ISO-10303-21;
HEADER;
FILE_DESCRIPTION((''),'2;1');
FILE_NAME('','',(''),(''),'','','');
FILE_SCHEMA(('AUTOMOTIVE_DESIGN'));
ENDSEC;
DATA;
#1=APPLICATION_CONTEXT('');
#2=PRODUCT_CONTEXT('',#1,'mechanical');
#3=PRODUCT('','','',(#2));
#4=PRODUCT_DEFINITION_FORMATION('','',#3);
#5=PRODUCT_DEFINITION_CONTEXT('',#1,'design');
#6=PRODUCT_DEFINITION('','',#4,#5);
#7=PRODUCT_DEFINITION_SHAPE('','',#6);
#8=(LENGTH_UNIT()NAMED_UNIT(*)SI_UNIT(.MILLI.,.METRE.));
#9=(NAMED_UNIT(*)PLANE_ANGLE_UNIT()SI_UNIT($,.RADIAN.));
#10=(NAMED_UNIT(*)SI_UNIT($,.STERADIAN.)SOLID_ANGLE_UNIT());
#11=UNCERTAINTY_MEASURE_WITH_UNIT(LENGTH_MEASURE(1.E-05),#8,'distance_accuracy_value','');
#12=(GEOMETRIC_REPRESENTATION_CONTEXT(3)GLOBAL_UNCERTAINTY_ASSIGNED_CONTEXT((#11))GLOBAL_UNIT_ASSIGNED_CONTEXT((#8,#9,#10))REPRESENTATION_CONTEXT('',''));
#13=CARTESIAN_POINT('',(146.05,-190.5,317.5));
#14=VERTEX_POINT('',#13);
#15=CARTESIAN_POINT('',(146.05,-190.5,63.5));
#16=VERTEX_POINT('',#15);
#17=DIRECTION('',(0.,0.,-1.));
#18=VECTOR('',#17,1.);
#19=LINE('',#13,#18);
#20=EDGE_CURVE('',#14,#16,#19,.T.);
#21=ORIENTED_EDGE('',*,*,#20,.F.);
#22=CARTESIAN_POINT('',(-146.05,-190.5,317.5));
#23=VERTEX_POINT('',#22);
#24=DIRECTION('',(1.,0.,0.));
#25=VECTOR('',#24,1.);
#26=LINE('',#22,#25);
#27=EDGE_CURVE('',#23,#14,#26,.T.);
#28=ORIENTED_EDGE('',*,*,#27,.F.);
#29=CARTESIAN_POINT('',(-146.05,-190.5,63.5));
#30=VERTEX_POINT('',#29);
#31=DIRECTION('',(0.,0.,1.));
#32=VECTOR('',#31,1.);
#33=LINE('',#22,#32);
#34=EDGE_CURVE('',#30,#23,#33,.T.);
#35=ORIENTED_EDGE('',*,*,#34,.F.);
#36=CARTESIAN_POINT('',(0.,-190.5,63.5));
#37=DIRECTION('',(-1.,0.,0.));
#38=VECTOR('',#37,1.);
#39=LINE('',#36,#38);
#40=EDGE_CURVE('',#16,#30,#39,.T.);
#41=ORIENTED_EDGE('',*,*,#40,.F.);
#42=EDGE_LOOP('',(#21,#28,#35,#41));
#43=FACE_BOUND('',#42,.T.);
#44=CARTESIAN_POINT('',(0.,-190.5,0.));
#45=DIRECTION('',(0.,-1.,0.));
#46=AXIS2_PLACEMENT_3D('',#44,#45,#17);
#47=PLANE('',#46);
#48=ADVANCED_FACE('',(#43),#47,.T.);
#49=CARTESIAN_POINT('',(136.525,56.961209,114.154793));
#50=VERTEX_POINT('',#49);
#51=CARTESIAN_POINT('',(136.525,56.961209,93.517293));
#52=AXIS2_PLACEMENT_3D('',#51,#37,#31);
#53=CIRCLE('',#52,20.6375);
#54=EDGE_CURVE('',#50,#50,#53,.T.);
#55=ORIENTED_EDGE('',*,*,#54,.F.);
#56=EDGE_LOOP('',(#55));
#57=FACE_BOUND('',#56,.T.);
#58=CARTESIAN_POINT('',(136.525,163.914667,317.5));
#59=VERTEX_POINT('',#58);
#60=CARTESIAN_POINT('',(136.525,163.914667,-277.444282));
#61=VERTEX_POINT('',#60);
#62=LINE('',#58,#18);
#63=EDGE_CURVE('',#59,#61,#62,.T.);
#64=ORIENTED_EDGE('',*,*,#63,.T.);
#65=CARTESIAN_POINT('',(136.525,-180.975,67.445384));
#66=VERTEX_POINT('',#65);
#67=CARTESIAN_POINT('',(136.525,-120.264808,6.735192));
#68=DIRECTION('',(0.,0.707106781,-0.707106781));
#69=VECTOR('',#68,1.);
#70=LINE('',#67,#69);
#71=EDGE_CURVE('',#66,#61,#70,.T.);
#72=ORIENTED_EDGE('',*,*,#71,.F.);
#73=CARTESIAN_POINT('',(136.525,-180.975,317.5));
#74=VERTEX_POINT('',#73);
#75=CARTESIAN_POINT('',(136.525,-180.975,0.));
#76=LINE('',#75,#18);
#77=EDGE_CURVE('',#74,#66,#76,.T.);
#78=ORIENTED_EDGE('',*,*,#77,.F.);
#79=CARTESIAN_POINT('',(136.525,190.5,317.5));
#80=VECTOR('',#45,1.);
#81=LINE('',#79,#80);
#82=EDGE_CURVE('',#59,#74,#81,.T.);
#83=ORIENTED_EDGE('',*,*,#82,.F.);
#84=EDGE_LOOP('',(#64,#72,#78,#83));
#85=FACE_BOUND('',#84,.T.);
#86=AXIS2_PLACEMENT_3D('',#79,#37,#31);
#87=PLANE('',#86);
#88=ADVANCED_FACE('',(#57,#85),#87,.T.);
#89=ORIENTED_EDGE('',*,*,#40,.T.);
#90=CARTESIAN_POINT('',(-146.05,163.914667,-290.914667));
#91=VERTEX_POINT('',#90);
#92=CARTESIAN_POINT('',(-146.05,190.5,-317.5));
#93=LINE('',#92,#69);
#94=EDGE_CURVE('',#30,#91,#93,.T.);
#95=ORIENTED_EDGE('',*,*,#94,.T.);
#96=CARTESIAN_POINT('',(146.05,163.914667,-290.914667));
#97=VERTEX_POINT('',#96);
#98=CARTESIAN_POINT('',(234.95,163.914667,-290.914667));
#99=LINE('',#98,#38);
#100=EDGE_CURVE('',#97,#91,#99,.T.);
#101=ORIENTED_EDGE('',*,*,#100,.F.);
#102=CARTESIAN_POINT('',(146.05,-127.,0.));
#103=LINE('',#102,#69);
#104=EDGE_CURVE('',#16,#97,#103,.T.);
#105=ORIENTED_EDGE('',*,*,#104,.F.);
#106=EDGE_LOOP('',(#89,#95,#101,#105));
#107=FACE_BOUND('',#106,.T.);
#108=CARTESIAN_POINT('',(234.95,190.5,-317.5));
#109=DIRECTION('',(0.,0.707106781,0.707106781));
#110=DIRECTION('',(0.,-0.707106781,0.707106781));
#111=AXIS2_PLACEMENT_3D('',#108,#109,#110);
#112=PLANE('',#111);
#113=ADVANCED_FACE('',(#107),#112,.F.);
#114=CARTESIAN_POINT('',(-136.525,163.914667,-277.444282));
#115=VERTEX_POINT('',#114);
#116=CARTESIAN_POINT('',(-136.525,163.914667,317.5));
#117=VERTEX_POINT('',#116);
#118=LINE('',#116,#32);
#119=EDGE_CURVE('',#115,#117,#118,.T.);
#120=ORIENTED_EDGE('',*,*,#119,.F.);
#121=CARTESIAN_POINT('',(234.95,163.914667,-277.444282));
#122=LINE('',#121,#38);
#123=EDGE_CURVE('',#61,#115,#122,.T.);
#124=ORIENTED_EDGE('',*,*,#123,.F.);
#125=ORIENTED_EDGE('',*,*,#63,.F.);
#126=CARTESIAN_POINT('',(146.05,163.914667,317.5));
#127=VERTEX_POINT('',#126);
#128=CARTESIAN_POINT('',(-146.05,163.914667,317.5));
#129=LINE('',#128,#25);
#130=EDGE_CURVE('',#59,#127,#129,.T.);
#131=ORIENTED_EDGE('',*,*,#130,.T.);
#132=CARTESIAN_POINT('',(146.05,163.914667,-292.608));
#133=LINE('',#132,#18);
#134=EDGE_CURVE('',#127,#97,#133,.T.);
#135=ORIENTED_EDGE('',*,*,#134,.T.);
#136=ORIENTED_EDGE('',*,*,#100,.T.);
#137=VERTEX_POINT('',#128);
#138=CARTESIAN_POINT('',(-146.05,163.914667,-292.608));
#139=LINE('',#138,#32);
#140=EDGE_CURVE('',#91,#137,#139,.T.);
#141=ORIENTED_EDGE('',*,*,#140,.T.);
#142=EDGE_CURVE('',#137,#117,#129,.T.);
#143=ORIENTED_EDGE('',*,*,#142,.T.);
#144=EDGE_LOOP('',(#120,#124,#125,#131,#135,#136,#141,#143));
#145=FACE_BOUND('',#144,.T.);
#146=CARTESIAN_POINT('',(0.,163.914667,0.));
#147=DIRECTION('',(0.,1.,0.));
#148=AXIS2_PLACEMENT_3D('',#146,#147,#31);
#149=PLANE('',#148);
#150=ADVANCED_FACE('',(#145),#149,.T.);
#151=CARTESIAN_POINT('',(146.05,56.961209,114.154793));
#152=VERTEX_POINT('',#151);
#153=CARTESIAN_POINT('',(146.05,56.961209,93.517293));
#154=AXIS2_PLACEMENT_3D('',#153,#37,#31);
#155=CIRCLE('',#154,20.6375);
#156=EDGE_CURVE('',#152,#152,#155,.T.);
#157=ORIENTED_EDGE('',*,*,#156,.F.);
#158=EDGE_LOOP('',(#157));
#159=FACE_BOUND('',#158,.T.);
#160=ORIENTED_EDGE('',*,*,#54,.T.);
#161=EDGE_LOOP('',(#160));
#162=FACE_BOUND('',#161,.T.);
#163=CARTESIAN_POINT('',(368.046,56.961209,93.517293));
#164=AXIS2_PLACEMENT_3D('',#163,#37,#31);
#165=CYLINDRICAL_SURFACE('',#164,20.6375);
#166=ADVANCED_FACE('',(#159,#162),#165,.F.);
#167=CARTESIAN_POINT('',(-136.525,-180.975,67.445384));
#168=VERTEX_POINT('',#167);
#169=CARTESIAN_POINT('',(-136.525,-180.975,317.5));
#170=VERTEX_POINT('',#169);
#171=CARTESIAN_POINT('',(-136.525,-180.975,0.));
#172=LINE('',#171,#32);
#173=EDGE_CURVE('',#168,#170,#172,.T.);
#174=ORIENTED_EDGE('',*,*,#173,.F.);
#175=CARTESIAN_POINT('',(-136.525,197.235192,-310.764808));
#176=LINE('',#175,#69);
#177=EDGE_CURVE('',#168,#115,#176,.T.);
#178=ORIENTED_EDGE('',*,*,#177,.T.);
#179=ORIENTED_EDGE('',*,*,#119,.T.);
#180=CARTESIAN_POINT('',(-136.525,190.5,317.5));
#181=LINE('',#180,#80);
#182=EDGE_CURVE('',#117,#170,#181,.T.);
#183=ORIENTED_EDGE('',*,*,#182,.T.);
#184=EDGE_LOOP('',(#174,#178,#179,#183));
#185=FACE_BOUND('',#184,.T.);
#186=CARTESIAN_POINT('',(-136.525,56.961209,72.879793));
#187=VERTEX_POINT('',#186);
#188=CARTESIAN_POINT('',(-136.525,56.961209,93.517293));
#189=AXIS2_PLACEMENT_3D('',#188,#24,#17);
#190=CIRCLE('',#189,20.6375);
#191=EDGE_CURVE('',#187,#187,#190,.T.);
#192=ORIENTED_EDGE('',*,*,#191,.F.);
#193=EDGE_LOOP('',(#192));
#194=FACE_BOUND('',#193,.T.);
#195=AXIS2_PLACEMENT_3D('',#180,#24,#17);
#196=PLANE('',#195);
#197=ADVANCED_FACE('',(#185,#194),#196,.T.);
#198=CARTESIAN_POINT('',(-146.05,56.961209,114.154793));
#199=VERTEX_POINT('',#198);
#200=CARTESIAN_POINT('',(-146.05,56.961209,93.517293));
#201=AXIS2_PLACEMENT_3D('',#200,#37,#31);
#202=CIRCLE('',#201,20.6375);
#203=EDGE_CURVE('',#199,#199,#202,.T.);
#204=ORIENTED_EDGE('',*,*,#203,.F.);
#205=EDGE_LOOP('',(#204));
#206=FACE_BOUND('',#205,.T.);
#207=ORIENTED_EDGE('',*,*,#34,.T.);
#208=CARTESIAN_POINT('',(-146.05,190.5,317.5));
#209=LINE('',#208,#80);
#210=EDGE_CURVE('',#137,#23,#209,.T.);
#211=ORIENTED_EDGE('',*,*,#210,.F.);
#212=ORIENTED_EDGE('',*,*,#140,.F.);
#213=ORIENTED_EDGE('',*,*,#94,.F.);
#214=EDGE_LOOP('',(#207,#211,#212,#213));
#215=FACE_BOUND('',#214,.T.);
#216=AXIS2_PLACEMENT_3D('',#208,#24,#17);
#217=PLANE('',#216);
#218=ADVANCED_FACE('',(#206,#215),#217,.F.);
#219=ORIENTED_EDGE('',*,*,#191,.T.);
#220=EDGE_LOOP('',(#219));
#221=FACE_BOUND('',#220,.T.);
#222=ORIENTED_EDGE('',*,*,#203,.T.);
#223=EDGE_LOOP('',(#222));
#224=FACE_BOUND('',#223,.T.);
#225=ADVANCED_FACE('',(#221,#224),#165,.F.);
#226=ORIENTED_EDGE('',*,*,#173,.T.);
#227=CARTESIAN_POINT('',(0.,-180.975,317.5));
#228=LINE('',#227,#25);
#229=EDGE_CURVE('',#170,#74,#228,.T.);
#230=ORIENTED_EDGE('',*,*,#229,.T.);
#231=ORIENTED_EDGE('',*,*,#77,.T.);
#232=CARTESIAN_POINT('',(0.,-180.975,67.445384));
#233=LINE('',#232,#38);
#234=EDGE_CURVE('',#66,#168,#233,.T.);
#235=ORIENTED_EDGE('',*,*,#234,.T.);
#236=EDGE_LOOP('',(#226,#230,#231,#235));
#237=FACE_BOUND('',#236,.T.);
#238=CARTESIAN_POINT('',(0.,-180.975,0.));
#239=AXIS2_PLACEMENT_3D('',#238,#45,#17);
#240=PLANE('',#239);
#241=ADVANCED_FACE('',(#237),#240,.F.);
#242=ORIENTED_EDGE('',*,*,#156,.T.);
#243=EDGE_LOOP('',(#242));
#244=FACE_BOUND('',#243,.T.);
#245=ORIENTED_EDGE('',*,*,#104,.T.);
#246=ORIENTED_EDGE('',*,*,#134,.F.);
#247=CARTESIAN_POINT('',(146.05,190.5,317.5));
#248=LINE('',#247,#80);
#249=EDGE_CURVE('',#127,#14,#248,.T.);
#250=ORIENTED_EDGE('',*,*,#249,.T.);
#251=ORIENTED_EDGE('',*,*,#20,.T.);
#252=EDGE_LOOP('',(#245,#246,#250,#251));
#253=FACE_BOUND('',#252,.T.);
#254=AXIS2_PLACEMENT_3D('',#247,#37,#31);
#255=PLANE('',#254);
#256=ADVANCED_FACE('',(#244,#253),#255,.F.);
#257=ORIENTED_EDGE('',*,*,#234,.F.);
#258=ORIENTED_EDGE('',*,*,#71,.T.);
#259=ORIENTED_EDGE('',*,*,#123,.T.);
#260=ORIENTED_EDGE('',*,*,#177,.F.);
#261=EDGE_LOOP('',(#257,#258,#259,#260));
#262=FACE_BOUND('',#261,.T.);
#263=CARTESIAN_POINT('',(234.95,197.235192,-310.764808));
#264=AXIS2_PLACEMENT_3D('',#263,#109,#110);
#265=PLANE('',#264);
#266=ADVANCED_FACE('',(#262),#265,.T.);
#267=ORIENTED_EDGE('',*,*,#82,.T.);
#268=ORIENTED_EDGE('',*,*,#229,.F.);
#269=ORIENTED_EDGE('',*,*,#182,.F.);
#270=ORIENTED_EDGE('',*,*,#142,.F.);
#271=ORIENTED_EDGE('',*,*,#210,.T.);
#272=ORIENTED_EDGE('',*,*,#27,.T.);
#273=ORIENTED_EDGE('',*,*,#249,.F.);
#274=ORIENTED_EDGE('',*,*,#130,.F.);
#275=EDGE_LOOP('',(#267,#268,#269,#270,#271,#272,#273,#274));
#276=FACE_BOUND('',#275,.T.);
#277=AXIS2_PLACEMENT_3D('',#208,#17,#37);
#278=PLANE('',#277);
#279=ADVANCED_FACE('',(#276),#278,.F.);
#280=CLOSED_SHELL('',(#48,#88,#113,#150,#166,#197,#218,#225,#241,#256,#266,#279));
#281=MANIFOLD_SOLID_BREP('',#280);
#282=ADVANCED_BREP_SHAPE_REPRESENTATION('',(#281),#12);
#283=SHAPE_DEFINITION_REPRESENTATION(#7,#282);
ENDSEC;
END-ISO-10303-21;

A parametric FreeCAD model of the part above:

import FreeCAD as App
import Part
import Sketcher
from FreeCAD import Vector
Q = App.Units.Quantity


def faces_at(feature, points):
    """Names of the faces that lie closest to the given points."""
    faces = feature.Shape.Faces
    near = lambda p: min(range(len(faces)), key=lambda i: faces[i].distToShape(Part.Vertex(*p))[0])
    return sorted({f"Face{near(p) + 1}" for p in points})

doc = App.newDocument("Part")
params = doc.addObject("Spreadsheet::Sheet", "Params")
for row, (alias, value) in enumerate([
    ("sketch1_height", "25 in"),
    ("sketch1_width", "11.5 in"),
    ("pad1_length", "15 in"),
    ("sketch2_width", "15 in"),
    ("pocket1_length", "15 in"),
    ("thickness_wall", "0.375 in"),
    ("sketch3_height", "25 in"),
    ("sketch3_width", "11.5 in"),
    ("pocket2_length", "0.98 in"),
    ("sketch4_diameter", "1.625 in"),
    ("pocket3_length", "20.24 in"),
    ("sketch5_width", "11.5 in"),
    ("sketch5_height", "24.02 in"),
    ("pocket4_length", "1.693333 mm"),
], start=1):
    params.set(f"A{row}", alias)
    params.set(f"B{row}", "=" + value)
    params.setAlias(f"B{row}", alias)

body = doc.addObject("PartDesign::Body", "Body")

sketch1 = doc.addObject("Sketcher::SketchObject", "Sketch")
body.addObject(sketch1)
sketch1.AttachmentSupport = (doc.XZ_Plane, [""])
sketch1.MapMode = "FlatFace"
sketch1.addGeometry([
    Part.LineSegment(Vector(-146.05, -317.5, 0), Vector(-146.05, 317.5, 0)),
    Part.LineSegment(Vector(-146.05, 317.5, 0), Vector(146.05, 317.5, 0)),
    Part.LineSegment(Vector(146.05, 317.5, 0), Vector(146.05, -317.5, 0)),
    Part.LineSegment(Vector(146.05, -317.5, 0), Vector(-146.05, -317.5, 0)),
], False)
sketch1.addConstraint([
    Sketcher.Constraint("Coincident", 0, 2, 1, 1),
    Sketcher.Constraint("Coincident", 1, 2, 2, 1),
    Sketcher.Constraint("Coincident", 2, 2, 3, 1),
    Sketcher.Constraint("Coincident", 3, 2, 0, 1),
    Sketcher.Constraint("Vertical", 0),
    Sketcher.Constraint("Horizontal", 1),
    Sketcher.Constraint("Vertical", 2),
    Sketcher.Constraint("Horizontal", 3),
    Sketcher.Constraint("Symmetric", 0, 2, 2, 2, -1, 1),
    Sketcher.Constraint("DistanceY", 0, 1, 0, 2, Q("25 in")),
    Sketcher.Constraint("DistanceX", 1, 1, 1, 2, Q("11.5 in")),
])
sketch1.setExpression("Constraints[9]", "Params.sketch1_height")
sketch1.setExpression("Constraints[10]", "Params.sketch1_width")
pad1 = doc.addObject("PartDesign::Pad", "Pad")
body.addObject(pad1)
pad1.Profile = sketch1
pad1.setExpression("Length", "Params.pad1_length")
pad1.Midplane = True

sketch2 = doc.addObject("Sketcher::SketchObject", "Sketch001")
body.addObject(sketch2)
sketch2.AttachmentSupport = (doc.YZ_Plane, [""])
sketch2.MapMode = "FlatFace"
sketch2.AttachmentOffset = App.Placement(Vector(0, 0, -5.75 * 25.4), App.Rotation())
sketch2.addGeometry([
    Part.LineSegment(Vector(-190.5, 63.5, 0), Vector(190.5, -317.5, 0)),
    Part.LineSegment(Vector(190.5, -317.5, 0), Vector(-190.5, -317.5, 0)),
    Part.LineSegment(Vector(-190.5, -317.5, 0), Vector(-190.5, 63.5, 0)),
], False)
sketch2.addConstraint([
    Sketcher.Constraint("Coincident", 0, 2, 1, 1),
    Sketcher.Constraint("Coincident", 1, 2, 2, 1),
    Sketcher.Constraint("Coincident", 2, 2, 0, 1),
    Sketcher.Constraint("Horizontal", 1),
    Sketcher.Constraint("Vertical", 2),
    Sketcher.Constraint("Equal", 1, 2),
    Sketcher.Constraint("DistanceX", 1, 2, 1, 1, Q("15 in")),
    Sketcher.Constraint("DistanceX", -1, 1, 0, 2, Q("7.5 in")),
    Sketcher.Constraint("DistanceY", 0, 2, -1, 1, Q("12.5 in")),
])
sketch2.setExpression("Constraints[6]", "Params.sketch2_width")
pocket1 = doc.addObject("PartDesign::Pocket", "Pocket")
body.addObject(pocket1)
pocket1.Profile = sketch2
pocket1.setExpression("Length", "Params.pocket1_length")
pocket1.Reversed = True
doc.recompute()

thickness = doc.addObject("PartDesign::Thickness", "Thickness")
body.addObject(thickness)
thickness.Base = (pocket1, faces_at(pocket1, [(0, 0, 317.5)]))
thickness.setExpression("Value", "Params.thickness_wall")
thickness.Reversed = True
thickness.Join = "Intersection"

sketch3 = doc.addObject("Sketcher::SketchObject", "Sketch002")
body.addObject(sketch3)
sketch3.AttachmentSupport = (doc.XZ_Plane, [""])
sketch3.MapMode = "FlatFace"
sketch3.AttachmentOffset = App.Placement(Vector(0, 0, -7.5 * 25.4), App.Rotation())
sketch3.addGeometry([
    Part.LineSegment(Vector(-146.05, -317.5, 0), Vector(-146.05, 317.5, 0)),
    Part.LineSegment(Vector(-146.05, 317.5, 0), Vector(146.05, 317.5, 0)),
    Part.LineSegment(Vector(146.05, 317.5, 0), Vector(146.05, -317.5, 0)),
    Part.LineSegment(Vector(146.05, -317.5, 0), Vector(-146.05, -317.5, 0)),
], False)
sketch3.addConstraint([
    Sketcher.Constraint("Coincident", 0, 2, 1, 1),
    Sketcher.Constraint("Coincident", 1, 2, 2, 1),
    Sketcher.Constraint("Coincident", 2, 2, 3, 1),
    Sketcher.Constraint("Coincident", 3, 2, 0, 1),
    Sketcher.Constraint("Vertical", 0),
    Sketcher.Constraint("Horizontal", 1),
    Sketcher.Constraint("Vertical", 2),
    Sketcher.Constraint("Horizontal", 3),
    Sketcher.Constraint("Symmetric", 0, 2, 2, 2, -1, 1),
    Sketcher.Constraint("DistanceY", 0, 1, 0, 2, Q("25 in")),
    Sketcher.Constraint("DistanceX", 1, 1, 1, 2, Q("11.5 in")),
])
sketch3.setExpression("Constraints[9]", "Params.sketch3_height")
sketch3.setExpression("Constraints[10]", "Params.sketch3_width")
pocket2 = doc.addObject("PartDesign::Pocket", "Pocket001")
body.addObject(pocket2)
pocket2.Profile = sketch3
pocket2.setExpression("Length", "Params.pocket2_length")
pocket2.Reversed = True

sketch4 = doc.addObject("Sketcher::SketchObject", "Sketch003")
body.addObject(sketch4)
sketch4.AttachmentSupport = (doc.YZ_Plane, [""])
sketch4.MapMode = "FlatFace"
sketch4.AttachmentOffset = App.Placement(Vector(0, 0, -5.75 * 25.4), App.Rotation())
sketch4.addGeometry(Part.Circle(Vector(56.961209, 93.517293, 0), Vector(0, 0, 1), 20.6375), False)
sketch4.addConstraint([
    Sketcher.Constraint("Diameter", 0, Q("1.625 in")),
    Sketcher.Constraint("DistanceX", -1, 1, 0, 3, Q("56.961209 mm")),
    Sketcher.Constraint("DistanceY", -1, 1, 0, 3, Q("93.517293 mm")),
])
sketch4.setExpression("Constraints[0]", "Params.sketch4_diameter")
pocket3 = doc.addObject("PartDesign::Pocket", "Pocket002")
body.addObject(pocket3)
pocket3.Profile = sketch4
pocket3.setExpression("Length", "Params.pocket3_length")
pocket3.Reversed = True

sketch5 = doc.addObject("Sketcher::SketchObject", "Sketch004")
body.addObject(sketch5)
sketch5.AttachmentSupport = (doc.XZ_Plane, [""])
sketch5.MapMode = "FlatFace"
sketch5.AttachmentOffset = App.Placement(Vector(0, 0, -6.52 * 25.4), App.Rotation())
sketch5.addGeometry([
    Part.LineSegment(Vector(-146.05, -292.608, 0), Vector(-146.05, 317.5, 0)),
    Part.LineSegment(Vector(-146.05, 317.5, 0), Vector(146.05, 317.5, 0)),
    Part.LineSegment(Vector(146.05, 317.5, 0), Vector(146.05, -292.608, 0)),
    Part.LineSegment(Vector(146.05, -292.608, 0), Vector(-146.05, -292.608, 0)),
], False)
sketch5.addConstraint([
    Sketcher.Constraint("Coincident", 0, 2, 1, 1),
    Sketcher.Constraint("Coincident", 1, 2, 2, 1),
    Sketcher.Constraint("Coincident", 2, 2, 3, 1),
    Sketcher.Constraint("Coincident", 3, 2, 0, 1),
    Sketcher.Constraint("Vertical", 0),
    Sketcher.Constraint("Horizontal", 1),
    Sketcher.Constraint("Vertical", 2),
    Sketcher.Constraint("Horizontal", 3),
    Sketcher.Constraint("DistanceX", 1, 1, 1, 2, Q("11.5 in")),
    Sketcher.Constraint("DistanceY", 0, 1, 0, 2, Q("24.02 in")),
    Sketcher.Constraint("DistanceY", -1, 1, 0, 2, Q("12.5 in")),
    Sketcher.Constraint("DistanceX", 0, 2, -1, 1, Q("5.75 in")),
])
sketch5.setExpression("Constraints[8]", "Params.sketch5_width")
sketch5.setExpression("Constraints[9]", "Params.sketch5_height")
pocket4 = doc.addObject("PartDesign::Pocket", "Pocket003")
body.addObject(pocket4)
pocket4.Profile = sketch5
pocket4.setExpression("Length", "Params.pocket4_length")
pocket4.Reversed = True

doc.recompute()
